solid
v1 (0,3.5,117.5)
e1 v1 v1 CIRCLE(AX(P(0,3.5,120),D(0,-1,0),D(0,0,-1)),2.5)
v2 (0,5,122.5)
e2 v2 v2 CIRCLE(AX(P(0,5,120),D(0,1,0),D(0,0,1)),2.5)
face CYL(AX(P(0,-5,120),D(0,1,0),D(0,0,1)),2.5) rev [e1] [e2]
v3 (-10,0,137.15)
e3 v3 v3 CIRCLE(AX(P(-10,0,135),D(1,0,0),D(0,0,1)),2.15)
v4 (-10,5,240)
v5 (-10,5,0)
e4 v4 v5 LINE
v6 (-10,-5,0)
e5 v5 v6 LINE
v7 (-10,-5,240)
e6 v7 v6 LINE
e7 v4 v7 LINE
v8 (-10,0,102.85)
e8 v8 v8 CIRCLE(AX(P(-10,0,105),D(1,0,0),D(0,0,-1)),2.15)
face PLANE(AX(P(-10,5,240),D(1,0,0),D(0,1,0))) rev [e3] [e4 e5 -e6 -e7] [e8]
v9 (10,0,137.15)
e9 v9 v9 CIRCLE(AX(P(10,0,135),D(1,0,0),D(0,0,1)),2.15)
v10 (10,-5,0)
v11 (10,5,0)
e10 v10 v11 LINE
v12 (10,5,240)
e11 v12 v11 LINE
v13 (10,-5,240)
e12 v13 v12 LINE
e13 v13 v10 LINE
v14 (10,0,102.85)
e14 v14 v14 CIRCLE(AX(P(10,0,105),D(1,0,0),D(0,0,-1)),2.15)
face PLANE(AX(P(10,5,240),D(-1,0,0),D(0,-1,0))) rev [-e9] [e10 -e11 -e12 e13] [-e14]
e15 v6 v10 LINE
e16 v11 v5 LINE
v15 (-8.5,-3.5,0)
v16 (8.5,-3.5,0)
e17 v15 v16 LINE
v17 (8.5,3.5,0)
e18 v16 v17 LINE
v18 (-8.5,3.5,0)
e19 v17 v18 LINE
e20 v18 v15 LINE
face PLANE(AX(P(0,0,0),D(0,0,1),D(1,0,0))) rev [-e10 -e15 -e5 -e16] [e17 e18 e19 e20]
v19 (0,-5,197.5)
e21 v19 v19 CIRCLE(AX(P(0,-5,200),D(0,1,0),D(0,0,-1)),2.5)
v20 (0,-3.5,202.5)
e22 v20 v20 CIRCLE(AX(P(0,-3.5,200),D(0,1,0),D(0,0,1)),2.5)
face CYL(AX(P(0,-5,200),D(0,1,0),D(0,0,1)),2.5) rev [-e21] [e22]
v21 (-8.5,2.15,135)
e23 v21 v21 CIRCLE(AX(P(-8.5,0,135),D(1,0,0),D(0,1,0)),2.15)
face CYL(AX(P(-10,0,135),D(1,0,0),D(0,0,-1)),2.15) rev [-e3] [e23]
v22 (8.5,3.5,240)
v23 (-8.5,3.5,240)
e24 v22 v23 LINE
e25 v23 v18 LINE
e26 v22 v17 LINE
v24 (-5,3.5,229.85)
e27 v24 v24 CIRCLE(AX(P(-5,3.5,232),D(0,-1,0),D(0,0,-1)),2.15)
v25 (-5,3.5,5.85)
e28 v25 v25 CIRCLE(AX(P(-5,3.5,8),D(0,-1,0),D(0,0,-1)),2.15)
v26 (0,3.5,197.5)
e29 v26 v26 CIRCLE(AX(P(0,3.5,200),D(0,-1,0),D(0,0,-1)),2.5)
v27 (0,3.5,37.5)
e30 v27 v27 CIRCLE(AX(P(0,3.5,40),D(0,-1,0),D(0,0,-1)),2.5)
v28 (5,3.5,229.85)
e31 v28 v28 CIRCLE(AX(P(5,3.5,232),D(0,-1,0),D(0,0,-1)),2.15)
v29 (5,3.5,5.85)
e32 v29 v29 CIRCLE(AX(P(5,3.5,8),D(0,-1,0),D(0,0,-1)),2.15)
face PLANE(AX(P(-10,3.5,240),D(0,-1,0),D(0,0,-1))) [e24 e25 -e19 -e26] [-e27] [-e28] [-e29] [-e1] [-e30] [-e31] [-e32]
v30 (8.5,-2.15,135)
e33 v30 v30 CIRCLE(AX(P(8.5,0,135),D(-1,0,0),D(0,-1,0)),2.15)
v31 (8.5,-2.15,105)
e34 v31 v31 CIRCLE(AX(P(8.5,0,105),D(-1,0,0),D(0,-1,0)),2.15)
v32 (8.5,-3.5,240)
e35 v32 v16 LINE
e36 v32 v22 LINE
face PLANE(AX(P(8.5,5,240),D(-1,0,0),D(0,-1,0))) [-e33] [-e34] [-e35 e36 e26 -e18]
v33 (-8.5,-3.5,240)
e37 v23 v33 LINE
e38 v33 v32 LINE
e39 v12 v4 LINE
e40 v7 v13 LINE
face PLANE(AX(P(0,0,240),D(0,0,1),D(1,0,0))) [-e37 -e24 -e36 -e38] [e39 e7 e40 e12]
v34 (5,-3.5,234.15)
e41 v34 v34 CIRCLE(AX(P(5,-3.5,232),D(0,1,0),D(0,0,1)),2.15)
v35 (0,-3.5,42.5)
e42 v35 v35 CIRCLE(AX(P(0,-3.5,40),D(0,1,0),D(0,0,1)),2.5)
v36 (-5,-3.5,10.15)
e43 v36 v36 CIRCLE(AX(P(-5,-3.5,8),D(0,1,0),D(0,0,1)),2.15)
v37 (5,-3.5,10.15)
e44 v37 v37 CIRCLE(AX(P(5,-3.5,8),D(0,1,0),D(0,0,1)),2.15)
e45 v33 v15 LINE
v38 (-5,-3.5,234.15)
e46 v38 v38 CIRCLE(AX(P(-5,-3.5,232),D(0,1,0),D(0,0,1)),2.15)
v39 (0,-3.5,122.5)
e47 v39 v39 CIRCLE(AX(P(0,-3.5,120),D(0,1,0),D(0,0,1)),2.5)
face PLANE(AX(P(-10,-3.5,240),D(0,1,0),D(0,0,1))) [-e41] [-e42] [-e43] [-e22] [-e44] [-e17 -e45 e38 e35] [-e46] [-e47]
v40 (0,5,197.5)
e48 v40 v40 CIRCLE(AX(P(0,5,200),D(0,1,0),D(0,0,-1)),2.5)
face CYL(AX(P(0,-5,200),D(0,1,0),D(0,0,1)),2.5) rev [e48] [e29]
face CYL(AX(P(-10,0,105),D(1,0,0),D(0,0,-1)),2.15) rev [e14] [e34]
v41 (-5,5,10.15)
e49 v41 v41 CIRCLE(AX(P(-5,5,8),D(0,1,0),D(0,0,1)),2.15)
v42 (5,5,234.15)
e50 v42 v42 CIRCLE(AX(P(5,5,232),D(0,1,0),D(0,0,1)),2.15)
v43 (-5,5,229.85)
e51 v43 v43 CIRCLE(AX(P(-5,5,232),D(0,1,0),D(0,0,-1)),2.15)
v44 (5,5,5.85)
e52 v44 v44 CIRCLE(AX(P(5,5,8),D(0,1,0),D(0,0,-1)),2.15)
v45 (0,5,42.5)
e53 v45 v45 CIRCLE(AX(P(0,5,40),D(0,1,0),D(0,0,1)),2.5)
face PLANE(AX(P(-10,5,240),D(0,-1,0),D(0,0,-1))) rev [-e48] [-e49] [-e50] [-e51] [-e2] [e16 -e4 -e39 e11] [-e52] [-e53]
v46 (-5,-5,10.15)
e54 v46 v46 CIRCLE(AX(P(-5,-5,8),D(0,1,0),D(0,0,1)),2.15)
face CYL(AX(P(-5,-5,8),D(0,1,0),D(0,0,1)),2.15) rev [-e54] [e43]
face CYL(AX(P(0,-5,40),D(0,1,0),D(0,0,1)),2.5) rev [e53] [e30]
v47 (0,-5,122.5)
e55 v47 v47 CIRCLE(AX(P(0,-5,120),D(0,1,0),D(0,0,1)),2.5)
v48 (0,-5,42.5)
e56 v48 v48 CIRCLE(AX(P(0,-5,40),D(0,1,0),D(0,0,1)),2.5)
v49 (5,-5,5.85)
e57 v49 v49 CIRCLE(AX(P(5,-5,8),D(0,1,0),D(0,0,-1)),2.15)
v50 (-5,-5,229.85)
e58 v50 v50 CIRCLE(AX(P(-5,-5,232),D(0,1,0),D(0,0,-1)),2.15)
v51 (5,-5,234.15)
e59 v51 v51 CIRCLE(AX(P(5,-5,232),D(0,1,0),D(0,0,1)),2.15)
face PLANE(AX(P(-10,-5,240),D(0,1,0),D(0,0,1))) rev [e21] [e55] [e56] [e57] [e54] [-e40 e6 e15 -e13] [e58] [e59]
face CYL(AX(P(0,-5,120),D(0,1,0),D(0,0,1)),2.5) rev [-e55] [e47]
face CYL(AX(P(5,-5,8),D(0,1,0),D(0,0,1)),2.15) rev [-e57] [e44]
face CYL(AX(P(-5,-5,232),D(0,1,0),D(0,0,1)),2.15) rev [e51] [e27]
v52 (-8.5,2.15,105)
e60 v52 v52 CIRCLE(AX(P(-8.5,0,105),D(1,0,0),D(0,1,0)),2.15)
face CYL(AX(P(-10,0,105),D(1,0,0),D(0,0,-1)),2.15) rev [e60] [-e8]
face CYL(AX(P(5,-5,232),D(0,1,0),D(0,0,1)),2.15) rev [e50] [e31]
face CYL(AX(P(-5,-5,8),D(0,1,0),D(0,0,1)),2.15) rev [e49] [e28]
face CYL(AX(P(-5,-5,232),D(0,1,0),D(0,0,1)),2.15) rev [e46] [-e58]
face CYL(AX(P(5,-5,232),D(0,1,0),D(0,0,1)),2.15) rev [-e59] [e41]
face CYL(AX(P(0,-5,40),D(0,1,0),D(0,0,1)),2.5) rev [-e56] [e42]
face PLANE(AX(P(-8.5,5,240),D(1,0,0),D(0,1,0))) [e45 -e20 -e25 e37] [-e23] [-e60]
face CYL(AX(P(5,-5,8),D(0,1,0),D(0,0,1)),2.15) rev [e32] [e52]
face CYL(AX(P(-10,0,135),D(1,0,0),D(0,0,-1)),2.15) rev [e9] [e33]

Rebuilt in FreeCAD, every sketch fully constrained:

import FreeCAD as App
import Part
import Sketcher
from FreeCAD import Vector
Q = App.Units.Quantity


def add_polygon(sketch, points):
    """Adds a closed chain of lines whose ends are joined by coincident constraints."""
    first, n = sketch.GeometryCount, len(points)
    for a, b in zip(points, points[1:] + points[:1]):
        sketch.addGeometry(Part.LineSegment(App.Vector(*a, 0), App.Vector(*b, 0)), False)
    for i in range(n):
        sketch.addConstraint(Sketcher.Constraint("Coincident", first + i, 2, first + (i + 1) % n, 1))

doc = App.newDocument("Part")
body = doc.addObject("PartDesign::Body", "Body")

# Sketch on XY plane
sketch1 = body.newObject("Sketcher::SketchObject", "Sketch")
sketch1.AttachmentSupport = (doc.getObject("XY_Plane"), [""])
sketch1.MapMode = "FlatFace"
add_polygon(sketch1, [(-10, 5), (-10, -5), (10, -5), (10, 5)])  # lines 0-3
add_polygon(sketch1, [(8.5, -3.5), (-8.5, -3.5), (-8.5, 3.5), (8.5, 3.5)])  # lines 4-7
sketch1.addConstraint(Sketcher.Constraint("Vertical", 0))
sketch1.addConstraint(Sketcher.Constraint("Horizontal", 1))
sketch1.addConstraint(Sketcher.Constraint("Vertical", 2))
sketch1.addConstraint(Sketcher.Constraint("Horizontal", 3))
sketch1.addConstraint(Sketcher.Constraint("Horizontal", 4))
sketch1.addConstraint(Sketcher.Constraint("Vertical", 5))
sketch1.addConstraint(Sketcher.Constraint("Horizontal", 6))
sketch1.addConstraint(Sketcher.Constraint("Vertical", 7))
sketch1.addConstraint(Sketcher.Constraint("Symmetric", 0, 2, 2, 2, -1, 1))
sketch1.addConstraint(Sketcher.Constraint("Symmetric", 4, 2, 6, 2, -1, 1))
sketch1.addConstraint(Sketcher.Constraint("DistanceX", 1, 1, 1, 2, Q("20 mm")))
sketch1.addConstraint(Sketcher.Constraint("DistanceX", 4, 2, 4, 1, Q("17 mm")))
sketch1.addConstraint(Sketcher.Constraint("DistanceY", 0, 2, 0, 1, Q("10 mm")))
sketch1.addConstraint(Sketcher.Constraint("DistanceY", 5, 1, 5, 2, Q("7 mm")))
pad1 = body.newObject("PartDesign::Pad", "Pad")
pad1.Profile = sketch1
pad1.Length = 240

# Sketch on XZ plane
sketch2 = body.newObject("Sketcher::SketchObject", "Sketch001")
sketch2.AttachmentSupport = (doc.getObject("XZ_Plane"), [""])
sketch2.MapMode = "FlatFace"
sketch2.AttachmentOffset = App.Placement(Vector(0, 0, -5), App.Rotation())
sketch2.addGeometry(Part.Circle(Vector(5, 232, 0), Vector(0, 0, 1), 2.15), False)
sketch2.addGeometry(Part.Circle(Vector(-5, 232, 0), Vector(0, 0, 1), 2.15), False)
sketch2.addGeometry(Part.Circle(Vector(5, 8, 0), Vector(0, 0, 1), 2.15), False)
sketch2.addGeometry(Part.Circle(Vector(-5, 8, 0), Vector(0, 0, 1), 2.15), False)
sketch2.addGeometry(Part.Circle(Vector(0, 40, 0), Vector(0, 0, 1), 2.5), False)
sketch2.addGeometry(Part.Circle(Vector(0, 200, 0), Vector(0, 0, 1), 2.5), False)
sketch2.addGeometry(Part.Circle(Vector(0, 120, 0), Vector(0, 0, 1), 2.5), False)
sketch2.addConstraint(Sketcher.Constraint("Equal", 0, 1))
sketch2.addConstraint(Sketcher.Constraint("Equal", 1, 2))
sketch2.addConstraint(Sketcher.Constraint("Equal", 2, 3))
sketch2.addConstraint(Sketcher.Constraint("Equal", 4, 5))
sketch2.addConstraint(Sketcher.Constraint("Equal", 5, 6))
sketch2.addConstraint(Sketcher.Constraint("Symmetric", 0, 3, 1, 3, -2))
sketch2.addConstraint(Sketcher.Constraint("Symmetric", 2, 3, 3, 3, -2))
sketch2.addConstraint(Sketcher.Constraint("PointOnObject", 4, 3, -2))
sketch2.addConstraint(Sketcher.Constraint("PointOnObject", 5, 3, -2))
sketch2.addConstraint(Sketcher.Constraint("PointOnObject", 6, 3, -2))
sketch2.addConstraint(Sketcher.Constraint("Vertical", 0, 3, 2, 3))
sketch2.addConstraint(Sketcher.Constraint("Diameter", 4, Q("5 mm")))
sketch2.addConstraint(Sketcher.Constraint("Diameter", 0, Q("4.3 mm")))
sketch2.addConstraint(Sketcher.Constraint("DistanceX", -1, 1, 0, 3, Q("5 mm")))
sketch2.addConstraint(Sketcher.Constraint("DistanceY", -1, 1, 0, 3, Q("232 mm")))
sketch2.addConstraint(Sketcher.Constraint("DistanceY", -1, 1, 2, 3, Q("8 mm")))
sketch2.addConstraint(Sketcher.Constraint("DistanceY", -1, 1, 4, 3, Q("40 mm")))
sketch2.addConstraint(Sketcher.Constraint("DistanceY", -1, 1, 5, 3, Q("200 mm")))
sketch2.addConstraint(Sketcher.Constraint("DistanceY", -1, 1, 6, 3, Q("120 mm")))
pocket1 = body.newObject("PartDesign::Pocket", "Pocket")
pocket1.Profile = sketch2
pocket1.Type = "ThroughAll"
pocket1.Reversed = True

# Sketch on YZ plane
sketch3 = body.newObject("Sketcher::SketchObject", "Sketch002")
sketch3.AttachmentSupport = (doc.getObject("YZ_Plane"), [""])
sketch3.MapMode = "FlatFace"
sketch3.AttachmentOffset = App.Placement(Vector(0, 0, 10), App.Rotation())
sketch3.addGeometry(Part.Circle(Vector(0, 105, 0), Vector(0, 0, 1), 2.15), False)
sketch3.addGeometry(Part.Circle(Vector(0, 135, 0), Vector(0, 0, 1), 2.15), False)
sketch3.addConstraint(Sketcher.Constraint("Equal", 0, 1))
sketch3.addConstraint(Sketcher.Constraint("PointOnObject", 0, 3, -2))
sketch3.addConstraint(Sketcher.Constraint("PointOnObject", 1, 3, -2))
sketch3.addConstraint(Sketcher.Constraint("Diameter", 0, Q("4.3 mm")))
sketch3.addConstraint(Sketcher.Constraint("DistanceY", -1, 1, 0, 3, Q("105 mm")))
sketch3.addConstraint(Sketcher.Constraint("DistanceY", -1, 1, 1, 3, Q("135 mm")))
pocket2 = body.newObject("PartDesign::Pocket", "Pocket001")
pocket2.Profile = sketch3
pocket2.Type = "ThroughAll"

doc.recompute()
